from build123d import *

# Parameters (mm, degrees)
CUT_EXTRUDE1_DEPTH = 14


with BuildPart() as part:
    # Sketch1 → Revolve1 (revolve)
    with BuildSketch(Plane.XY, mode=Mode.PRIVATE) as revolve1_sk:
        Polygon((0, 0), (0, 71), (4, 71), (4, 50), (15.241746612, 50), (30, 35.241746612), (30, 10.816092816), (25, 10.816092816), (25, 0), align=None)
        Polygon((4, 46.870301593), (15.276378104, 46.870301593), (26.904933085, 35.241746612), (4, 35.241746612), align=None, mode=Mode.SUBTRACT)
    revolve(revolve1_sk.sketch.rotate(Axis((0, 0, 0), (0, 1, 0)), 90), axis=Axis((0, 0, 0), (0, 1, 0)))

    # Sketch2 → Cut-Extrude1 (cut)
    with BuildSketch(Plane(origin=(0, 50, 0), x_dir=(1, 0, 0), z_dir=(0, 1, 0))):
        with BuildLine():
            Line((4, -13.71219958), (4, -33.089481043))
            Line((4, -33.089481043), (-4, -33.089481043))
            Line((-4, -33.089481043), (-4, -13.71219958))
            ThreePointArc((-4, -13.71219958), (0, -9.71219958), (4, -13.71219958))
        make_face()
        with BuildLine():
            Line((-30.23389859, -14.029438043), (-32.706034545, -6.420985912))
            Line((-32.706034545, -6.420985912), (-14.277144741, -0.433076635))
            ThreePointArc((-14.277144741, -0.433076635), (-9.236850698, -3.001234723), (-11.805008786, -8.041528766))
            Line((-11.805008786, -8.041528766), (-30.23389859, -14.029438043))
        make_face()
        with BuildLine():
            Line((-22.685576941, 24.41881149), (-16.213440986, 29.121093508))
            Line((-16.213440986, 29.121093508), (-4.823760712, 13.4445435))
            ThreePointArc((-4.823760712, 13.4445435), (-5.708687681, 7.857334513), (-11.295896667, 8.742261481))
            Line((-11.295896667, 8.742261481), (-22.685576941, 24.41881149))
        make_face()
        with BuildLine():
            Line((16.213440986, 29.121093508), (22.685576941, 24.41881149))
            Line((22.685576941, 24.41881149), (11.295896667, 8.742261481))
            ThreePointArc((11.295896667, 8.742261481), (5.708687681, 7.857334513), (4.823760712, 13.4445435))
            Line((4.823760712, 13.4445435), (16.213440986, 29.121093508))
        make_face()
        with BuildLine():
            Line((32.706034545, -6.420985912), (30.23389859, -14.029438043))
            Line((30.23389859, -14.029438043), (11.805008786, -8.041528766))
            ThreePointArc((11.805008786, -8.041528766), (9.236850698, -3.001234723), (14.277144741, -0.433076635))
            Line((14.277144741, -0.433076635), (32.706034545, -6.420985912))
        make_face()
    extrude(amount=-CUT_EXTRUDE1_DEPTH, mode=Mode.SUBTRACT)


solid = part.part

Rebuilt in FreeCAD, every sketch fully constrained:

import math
import FreeCAD as App
import Part
import Sketcher
Q = App.Units.Quantity

doc = App.newDocument("Part")
body = doc.addObject("PartDesign::Body", "Body")

# Sketch on XY plane
sketch1 = body.newObject("Sketcher::SketchObject", "Sketch")
sketch1.AttachmentSupport = (doc.getObject("XY_Plane"), [""])
sketch1.MapMode = "FlatFace"
sketch1.addGeometry(Part.LineSegment(App.Vector(0, 71, 0), App.Vector(0, 0, 0)), False)
sketch1.addGeometry(Part.LineSegment(App.Vector(0, 0, 0), App.Vector(25, 0, 0)), False)
sketch1.addGeometry(Part.LineSegment(App.Vector(25, 0, 0), App.Vector(25, 10.8, 0)), False)
sketch1.addGeometry(Part.LineSegment(App.Vector(25, 10.8, 0), App.Vector(30, 10.8, 0)), False)
sketch1.addGeometry(Part.LineSegment(App.Vector(30, 10.8, 0), App.Vector(30, 35.2, 0)), False)
sketch1.addGeometry(Part.LineSegment(App.Vector(30, 35.2, 0), App.Vector(15.2, 50, 0)), False)
sketch1.addGeometry(Part.LineSegment(App.Vector(15.2, 50, 0), App.Vector(4, 50, 0)), False)
sketch1.addGeometry(Part.LineSegment(App.Vector(4, 50, 0), App.Vector(4, 71, 0)), False)
sketch1.addGeometry(Part.LineSegment(App.Vector(4, 71, 0), App.Vector(0, 71, 0)), False)
sketch1.addGeometry(Part.LineSegment(App.Vector(4, 46.9, 0), App.Vector(15.3, 46.9, 0)), False)
sketch1.addGeometry(Part.LineSegment(App.Vector(15.3, 46.9, 0), App.Vector(26.9, 35.2, 0)), False)
sketch1.addGeometry(Part.LineSegment(App.Vector(26.9, 35.2, 0), App.Vector(4, 35.2, 0)), False)
sketch1.addGeometry(Part.LineSegment(App.Vector(4, 35.2, 0), App.Vector(4, 46.9, 0)), False)
sketch1.addConstraint(Sketcher.Constraint("Coincident", 0, 2, 1, 1))
sketch1.addConstraint(Sketcher.Constraint("Coincident", 1, 2, 2, 1))
sketch1.addConstraint(Sketcher.Constraint("Coincident", 2, 2, 3, 1))
sketch1.addConstraint(Sketcher.Constraint("Coincident", 3, 2, 4, 1))
sketch1.addConstraint(Sketcher.Constraint("Coincident", 4, 2, 5, 1))
sketch1.addConstraint(Sketcher.Constraint("Coincident", 5, 2, 6, 1))
sketch1.addConstraint(Sketcher.Constraint("Coincident", 6, 2, 7, 1))
sketch1.addConstraint(Sketcher.Constraint("Coincident", 7, 2, 8, 1))
sketch1.addConstraint(Sketcher.Constraint("Coincident", 8, 2, 0, 1))
sketch1.addConstraint(Sketcher.Constraint("Coincident", 9, 2, 10, 1))
sketch1.addConstraint(Sketcher.Constraint("Coincident", 10, 2, 11, 1))
sketch1.addConstraint(Sketcher.Constraint("Coincident", 11, 2, 12, 1))
sketch1.addConstraint(Sketcher.Constraint("Coincident", 12, 2, 9, 1))
sketch1.addConstraint(Sketcher.Constraint("Vertical", 0))
sketch1.addConstraint(Sketcher.Constraint("Horizontal", 1))
sketch1.addConstraint(Sketcher.Constraint("Vertical", 2))
sketch1.addConstraint(Sketcher.Constraint("Horizontal", 3))
sketch1.addConstraint(Sketcher.Constraint("Vertical", 4))
sketch1.addConstraint(Sketcher.Constraint("Horizontal", 6))
sketch1.addConstraint(Sketcher.Constraint("Vertical", 7))
sketch1.addConstraint(Sketcher.Constraint("Horizontal", 8))
sketch1.addConstraint(Sketcher.Constraint("Horizontal", 9))
sketch1.addConstraint(Sketcher.Constraint("Horizontal", 11))
sketch1.addConstraint(Sketcher.Constraint("Vertical", 12))
sketch1.addConstraint(Sketcher.Constraint("Coincident", 0, 2, -1, 1))
sketch1.addConstraint(Sketcher.Constraint("Parallel", 5, 10))
sketch1.addConstraint(Sketcher.Constraint("Horizontal", 4, 2, 10, 2))
sketch1.addConstraint(Sketcher.Constraint("Vertical", 7, 2, 11, 2))
sketch1.addConstraint(Sketcher.Constraint("DistanceX", 1, 1, 1, 2, Q("25 mm")))
sketch1.addConstraint(Sketcher.Constraint("DistanceX", 3, 1, 3, 2, Q("5 mm")))
sketch1.addConstraint(Sketcher.Constraint("DistanceX", 8, 2, 8, 1, Q("4 mm")))
sketch1.addConstraint(Sketcher.Constraint("DistanceY", 0, 2, 0, 1, Q("71 mm")))
sketch1.addConstraint(Sketcher.Constraint("DistanceY", 7, 1, 7, 2, Q("21 mm")))
sketch1.addConstraint(Sketcher.Constraint("Angle", 5, Q("135 deg")))
sketch1.addConstraint(Sketcher.Constraint("DistanceX", 9, 1, 9, 2, Q("11.276378 mm")))
sketch1.addConstraint(Sketcher.Constraint("DistanceY", -1, 1, 9, 2, Q("46.870302 mm")))
sketch1.addConstraint(Sketcher.Constraint("Distance", 10, Q("16.44526 mm")))
sketch1.addConstraint(Sketcher.Constraint("DistanceY", 2, 1, 2, 2, Q("10.816093 mm")))
revolution = body.newObject("PartDesign::Revolution", "Revolution")
revolution.Profile = sketch1
revolution.ReferenceAxis = (sketch1, ["V_Axis"])
revolution.Angle = 360

# Sketch on XZ plane
sketch2 = body.newObject("Sketcher::SketchObject", "Sketch001")
sketch2.AttachmentSupport = (doc.getObject("XZ_Plane"), [""])
sketch2.MapMode = "FlatFace"
sketch2.AttachmentOffset = App.Placement(App.Vector(0, 0, -50), App.Rotation())
sketch2.addGeometry(Part.LineSegment(App.Vector(4, 33.1, 0), App.Vector(4, 13.7, 0)), False)
sketch2.addGeometry(Part.ArcOfCircle(Part.Circle(App.Vector(0, 13.7, 0), App.Vector(0, 0, 1), 4), math.radians(180), math.radians(360)), False)
sketch2.addGeometry(Part.LineSegment(App.Vector(-4, 13.7, 0), App.Vector(-4, 33.1, 0)), False)
sketch2.addGeometry(Part.LineSegment(App.Vector(-4, 33.1, 0), App.Vector(4, 33.1, 0)), False)
sketch2.addGeometry(Part.LineSegment(App.Vector(-32.7, 6.4, 0), App.Vector(-30.2, 14, 0)), False)
sketch2.addGeometry(Part.LineSegment(App.Vector(-30.2, 14, 0), App.Vector(-11.8, 8, 0)), False)
sketch2.addGeometry(Part.ArcOfCircle(Part.Circle(App.Vector(-13, 4.2, 0), App.Vector(0, 0, 1), 4), math.radians(-108), math.radians(72)), False)
sketch2.addGeometry(Part.LineSegment(App.Vector(-14.3, 0.4, 0), App.Vector(-32.7, 6.4, 0)), False)
sketch2.addGeometry(Part.LineSegment(App.Vector(-16.2, -29.1, 0), App.Vector(-22.7, -24.4, 0)), False)
sketch2.addGeometry(Part.LineSegment(App.Vector(-22.7, -24.4, 0), App.Vector(-11.3, -8.7, 0)), False)
sketch2.addGeometry(Part.ArcOfCircle(Part.Circle(App.Vector(-8.1, -11.1, 0), App.Vector(0, 0, 1), 4), math.radians(-36), math.radians(144)), False)
sketch2.addGeometry(Part.LineSegment(App.Vector(-4.8, -13.4, 0), App.Vector(-16.2, -29.1, 0)), False)
sketch2.addGeometry(Part.LineSegment(App.Vector(22.7, -24.4, 0), App.Vector(16.2, -29.1, 0)), False)
sketch2.addGeometry(Part.LineSegment(App.Vector(16.2, -29.1, 0), App.Vector(4.8, -13.4, 0)), False)
sketch2.addGeometry(Part.ArcOfCircle(Part.Circle(App.Vector(8.1, -11.1, 0), App.Vector(0, 0, 1), 4), math.radians(36), math.radians(216)), False)
sketch2.addGeometry(Part.LineSegment(App.Vector(11.3, -8.7, 0), App.Vector(22.7, -24.4, 0)), False)
sketch2.addGeometry(Part.LineSegment(App.Vector(30.2, 14, 0), App.Vector(32.7, 6.4, 0)), False)
sketch2.addGeometry(Part.LineSegment(App.Vector(32.7, 6.4, 0), App.Vector(14.3, 0.4, 0)), False)
sketch2.addGeometry(Part.ArcOfCircle(Part.Circle(App.Vector(13, 4.2, 0), App.Vector(0, 0, 1), 4), math.radians(108), math.radians(288)), False)
sketch2.addGeometry(Part.LineSegment(App.Vector(11.8, 8, 0), App.Vector(30.2, 14, 0)), False)
sketch2.addConstraint(Sketcher.Constraint("Tangent", 0, 2, 1, 2))
sketch2.addConstraint(Sketcher.Constraint("Tangent", 1, 1, 2, 1))
sketch2.addConstraint(Sketcher.Constraint("Coincident", 2, 2, 3, 1))
sketch2.addConstraint(Sketcher.Constraint("Coincident", 3, 2, 0, 1))
sketch2.addConstraint(Sketcher.Constraint("Coincident", 4, 2, 5, 1))
sketch2.addConstraint(Sketcher.Constraint("Tangent", 5, 2, 6, 2))
sketch2.addConstraint(Sketcher.Constraint("Tangent", 6, 1, 7, 1))
sketch2.addConstraint(Sketcher.Constraint("Coincident", 7, 2, 4, 1))
sketch2.addConstraint(Sketcher.Constraint("Coincident", 8, 2, 9, 1))
sketch2.addConstraint(Sketcher.Constraint("Tangent", 9, 2, 10, 2))
sketch2.addConstraint(Sketcher.Constraint("Tangent", 10, 1, 11, 1))
sketch2.addConstraint(Sketcher.Constraint("Coincident", 11, 2, 8, 1))
sketch2.addConstraint(Sketcher.Constraint("Coincident", 12, 2, 13, 1))
sketch2.addConstraint(Sketcher.Constraint("Tangent", 13, 2, 14, 2))
sketch2.addConstraint(Sketcher.Constraint("Tangent", 14, 1, 15, 1))
sketch2.addConstraint(Sketcher.Constraint("Coincident", 15, 2, 12, 1))
sketch2.addConstraint(Sketcher.Constraint("Coincident", 16, 2, 17, 1))
sketch2.addConstraint(Sketcher.Constraint("Tangent", 17, 2, 18, 2))
sketch2.addConstraint(Sketcher.Constraint("Tangent", 18, 1, 19, 1))
sketch2.addConstraint(Sketcher.Constraint("Coincident", 19, 2, 16, 1))
sketch2.addConstraint(Sketcher.Constraint("Vertical", 0))
sketch2.addConstraint(Sketcher.Constraint("Vertical", 2))
sketch2.addConstraint(Sketcher.Constraint("Horizontal", 3))
sketch2.addConstraint(Sketcher.Constraint("Equal", 1, 6))
sketch2.addConstraint(Sketcher.Constraint("Equal", 6, 10))
sketch2.addConstraint(Sketcher.Constraint("Equal", 10, 14))
sketch2.addConstraint(Sketcher.Constraint("Equal", 14, 18))
sketch2.addConstraint(Sketcher.Constraint("Symmetric", 10, 3, 14, 3, -2))
sketch2.addConstraint(Sketcher.Constraint("Symmetric", 6, 3, 18, 3, -2))
sketch2.addConstraint(Sketcher.Constraint("Symmetric", 11, 2, 12, 2, -2))
sketch2.addConstraint(Sketcher.Constraint("Symmetric", 8, 2, 15, 2, -2))
sketch2.addConstraint(Sketcher.Constraint("Symmetric", 7, 2, 16, 2, -2))
sketch2.addConstraint(Sketcher.Constraint("Symmetric", 4, 2, 19, 2, -2))
sketch2.addConstraint(Sketcher.Constraint("PointOnObject", 1, 3, -2))
sketch2.addConstraint(Sketcher.Constraint("Perpendicular", 4, 5))
sketch2.addConstraint(Sketcher.Constraint("Parallel", 5, 7))
sketch2.addConstraint(Sketcher.Constraint("Perpendicular", 8, 9))
sketch2.addConstraint(Sketcher.Constraint("Parallel", 9, 11))
sketch2.addConstraint(Sketcher.Constraint("Equal", 7, 9))
sketch2.addConstraint(Sketcher.Constraint("Radius", 1, Q("4 mm")))
sketch2.addConstraint(Sketcher.Constraint("Angle", 4, Q("72 deg")))
sketch2.addConstraint(Sketcher.Constraint("Angle", 8, Q("144 deg")))
sketch2.addConstraint(Sketcher.Constraint("DistanceY", 0, 2, 0, 1, Q("19.377281 mm")))
sketch2.addConstraint(Sketcher.Constraint("DistanceY", -1, 1, 1, 3, Q("13.7122 mm")))
sketch2.addConstraint(Sketcher.Constraint("DistanceX", 4, 2, -1, 1, Q("30.233899 mm")))
sketch2.addConstraint(Sketcher.Constraint("DistanceX", 8, 2, 6, 3, Q("9.6445 mm")))
sketch2.addConstraint(Sketcher.Constraint("DistanceX", 10, 1, 12, 2, Q("21.037202 mm")))
sketch2.addConstraint(Sketcher.Constraint("DistanceY", -1, 1, 4, 2, Q("14.029438 mm")))
sketch2.addConstraint(Sketcher.Constraint("DistanceY", 8, 2, -1, 1, Q("24.418811 mm")))
pocket1 = body.newObject("PartDesign::Pocket", "Pocket")
pocket1.Profile = sketch2
pocket1.Length = 14
pocket1.Reversed = True

doc.recompute()
